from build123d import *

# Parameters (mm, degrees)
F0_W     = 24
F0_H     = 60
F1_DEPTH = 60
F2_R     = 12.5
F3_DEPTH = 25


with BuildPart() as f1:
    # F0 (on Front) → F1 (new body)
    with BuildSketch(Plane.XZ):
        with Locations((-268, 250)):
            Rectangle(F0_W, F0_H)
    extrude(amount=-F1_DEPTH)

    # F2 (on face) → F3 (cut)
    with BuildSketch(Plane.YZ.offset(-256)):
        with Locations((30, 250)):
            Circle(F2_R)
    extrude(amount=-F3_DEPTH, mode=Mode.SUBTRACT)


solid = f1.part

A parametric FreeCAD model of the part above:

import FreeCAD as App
import Part
import Sketcher

V = App.Vector

doc = App.newDocument("Part")
body = doc.addObject("PartDesign::Body", "Body")

# Sketch on XZ plane
sketch1 = body.newObject("Sketcher::SketchObject", "Sketch")
sketch1.AttachmentSupport = (doc.getObject("XZ_Plane"), [""])
sketch1.MapMode = "FlatFace"
sketch1.addGeometry([
    Part.LineSegment(V(-280, 280, 0), V(-280, 220, 0)),
    Part.LineSegment(V(-280, 220, 0), V(-256, 220, 0)),
    Part.LineSegment(V(-256, 220, 0), V(-256, 280, 0)),
    Part.LineSegment(V(-256, 280, 0), V(-280, 280, 0)),
], False)
sketch1.addConstraint([
    Sketcher.Constraint("Coincident", 0, 2, 1, 1),
    Sketcher.Constraint("Coincident", 1, 2, 2, 1),
    Sketcher.Constraint("Coincident", 2, 2, 3, 1),
    Sketcher.Constraint("Coincident", 3, 2, 0, 1),
    Sketcher.Constraint("Vertical", 0),
    Sketcher.Constraint("Horizontal", 1),
    Sketcher.Constraint("Vertical", 2),
    Sketcher.Constraint("Horizontal", 3),
    Sketcher.Constraint("DistanceX", 1, 1, 1, 2, 24.0),
    Sketcher.Constraint("DistanceY", 0, 2, 0, 1, 60.0),
    Sketcher.Constraint("DistanceX", 0, 2, -1, 1, 280.0),
    Sketcher.Constraint("DistanceY", -1, 1, 0, 2, 220.0),
])
pad1 = body.newObject("PartDesign::Pad", "Pad")
pad1.Profile = sketch1
pad1.Length = 60
pad1.Reversed = True

# Sketch on YZ plane
sketch2 = body.newObject("Sketcher::SketchObject", "Sketch001")
sketch2.AttachmentSupport = (doc.getObject("YZ_Plane"), [""])
sketch2.MapMode = "FlatFace"
sketch2.AttachmentOffset = App.Placement(V(0, 0, -256), App.Rotation())
sketch2.addGeometry(Part.Circle(V(30, 250, 0), V(0, 0, 1), 12), False)
sketch2.addConstraint([
    Sketcher.Constraint("Diameter", 0, 25.0),
    Sketcher.Constraint("DistanceX", -1, 1, 0, 3, 30.0),
    Sketcher.Constraint("DistanceY", -1, 1, 0, 3, 250.0),
])
pocket1 = body.newObject("PartDesign::Pocket", "Pocket")
pocket1.Profile = sketch2
pocket1.Length = 25

doc.recompute()
